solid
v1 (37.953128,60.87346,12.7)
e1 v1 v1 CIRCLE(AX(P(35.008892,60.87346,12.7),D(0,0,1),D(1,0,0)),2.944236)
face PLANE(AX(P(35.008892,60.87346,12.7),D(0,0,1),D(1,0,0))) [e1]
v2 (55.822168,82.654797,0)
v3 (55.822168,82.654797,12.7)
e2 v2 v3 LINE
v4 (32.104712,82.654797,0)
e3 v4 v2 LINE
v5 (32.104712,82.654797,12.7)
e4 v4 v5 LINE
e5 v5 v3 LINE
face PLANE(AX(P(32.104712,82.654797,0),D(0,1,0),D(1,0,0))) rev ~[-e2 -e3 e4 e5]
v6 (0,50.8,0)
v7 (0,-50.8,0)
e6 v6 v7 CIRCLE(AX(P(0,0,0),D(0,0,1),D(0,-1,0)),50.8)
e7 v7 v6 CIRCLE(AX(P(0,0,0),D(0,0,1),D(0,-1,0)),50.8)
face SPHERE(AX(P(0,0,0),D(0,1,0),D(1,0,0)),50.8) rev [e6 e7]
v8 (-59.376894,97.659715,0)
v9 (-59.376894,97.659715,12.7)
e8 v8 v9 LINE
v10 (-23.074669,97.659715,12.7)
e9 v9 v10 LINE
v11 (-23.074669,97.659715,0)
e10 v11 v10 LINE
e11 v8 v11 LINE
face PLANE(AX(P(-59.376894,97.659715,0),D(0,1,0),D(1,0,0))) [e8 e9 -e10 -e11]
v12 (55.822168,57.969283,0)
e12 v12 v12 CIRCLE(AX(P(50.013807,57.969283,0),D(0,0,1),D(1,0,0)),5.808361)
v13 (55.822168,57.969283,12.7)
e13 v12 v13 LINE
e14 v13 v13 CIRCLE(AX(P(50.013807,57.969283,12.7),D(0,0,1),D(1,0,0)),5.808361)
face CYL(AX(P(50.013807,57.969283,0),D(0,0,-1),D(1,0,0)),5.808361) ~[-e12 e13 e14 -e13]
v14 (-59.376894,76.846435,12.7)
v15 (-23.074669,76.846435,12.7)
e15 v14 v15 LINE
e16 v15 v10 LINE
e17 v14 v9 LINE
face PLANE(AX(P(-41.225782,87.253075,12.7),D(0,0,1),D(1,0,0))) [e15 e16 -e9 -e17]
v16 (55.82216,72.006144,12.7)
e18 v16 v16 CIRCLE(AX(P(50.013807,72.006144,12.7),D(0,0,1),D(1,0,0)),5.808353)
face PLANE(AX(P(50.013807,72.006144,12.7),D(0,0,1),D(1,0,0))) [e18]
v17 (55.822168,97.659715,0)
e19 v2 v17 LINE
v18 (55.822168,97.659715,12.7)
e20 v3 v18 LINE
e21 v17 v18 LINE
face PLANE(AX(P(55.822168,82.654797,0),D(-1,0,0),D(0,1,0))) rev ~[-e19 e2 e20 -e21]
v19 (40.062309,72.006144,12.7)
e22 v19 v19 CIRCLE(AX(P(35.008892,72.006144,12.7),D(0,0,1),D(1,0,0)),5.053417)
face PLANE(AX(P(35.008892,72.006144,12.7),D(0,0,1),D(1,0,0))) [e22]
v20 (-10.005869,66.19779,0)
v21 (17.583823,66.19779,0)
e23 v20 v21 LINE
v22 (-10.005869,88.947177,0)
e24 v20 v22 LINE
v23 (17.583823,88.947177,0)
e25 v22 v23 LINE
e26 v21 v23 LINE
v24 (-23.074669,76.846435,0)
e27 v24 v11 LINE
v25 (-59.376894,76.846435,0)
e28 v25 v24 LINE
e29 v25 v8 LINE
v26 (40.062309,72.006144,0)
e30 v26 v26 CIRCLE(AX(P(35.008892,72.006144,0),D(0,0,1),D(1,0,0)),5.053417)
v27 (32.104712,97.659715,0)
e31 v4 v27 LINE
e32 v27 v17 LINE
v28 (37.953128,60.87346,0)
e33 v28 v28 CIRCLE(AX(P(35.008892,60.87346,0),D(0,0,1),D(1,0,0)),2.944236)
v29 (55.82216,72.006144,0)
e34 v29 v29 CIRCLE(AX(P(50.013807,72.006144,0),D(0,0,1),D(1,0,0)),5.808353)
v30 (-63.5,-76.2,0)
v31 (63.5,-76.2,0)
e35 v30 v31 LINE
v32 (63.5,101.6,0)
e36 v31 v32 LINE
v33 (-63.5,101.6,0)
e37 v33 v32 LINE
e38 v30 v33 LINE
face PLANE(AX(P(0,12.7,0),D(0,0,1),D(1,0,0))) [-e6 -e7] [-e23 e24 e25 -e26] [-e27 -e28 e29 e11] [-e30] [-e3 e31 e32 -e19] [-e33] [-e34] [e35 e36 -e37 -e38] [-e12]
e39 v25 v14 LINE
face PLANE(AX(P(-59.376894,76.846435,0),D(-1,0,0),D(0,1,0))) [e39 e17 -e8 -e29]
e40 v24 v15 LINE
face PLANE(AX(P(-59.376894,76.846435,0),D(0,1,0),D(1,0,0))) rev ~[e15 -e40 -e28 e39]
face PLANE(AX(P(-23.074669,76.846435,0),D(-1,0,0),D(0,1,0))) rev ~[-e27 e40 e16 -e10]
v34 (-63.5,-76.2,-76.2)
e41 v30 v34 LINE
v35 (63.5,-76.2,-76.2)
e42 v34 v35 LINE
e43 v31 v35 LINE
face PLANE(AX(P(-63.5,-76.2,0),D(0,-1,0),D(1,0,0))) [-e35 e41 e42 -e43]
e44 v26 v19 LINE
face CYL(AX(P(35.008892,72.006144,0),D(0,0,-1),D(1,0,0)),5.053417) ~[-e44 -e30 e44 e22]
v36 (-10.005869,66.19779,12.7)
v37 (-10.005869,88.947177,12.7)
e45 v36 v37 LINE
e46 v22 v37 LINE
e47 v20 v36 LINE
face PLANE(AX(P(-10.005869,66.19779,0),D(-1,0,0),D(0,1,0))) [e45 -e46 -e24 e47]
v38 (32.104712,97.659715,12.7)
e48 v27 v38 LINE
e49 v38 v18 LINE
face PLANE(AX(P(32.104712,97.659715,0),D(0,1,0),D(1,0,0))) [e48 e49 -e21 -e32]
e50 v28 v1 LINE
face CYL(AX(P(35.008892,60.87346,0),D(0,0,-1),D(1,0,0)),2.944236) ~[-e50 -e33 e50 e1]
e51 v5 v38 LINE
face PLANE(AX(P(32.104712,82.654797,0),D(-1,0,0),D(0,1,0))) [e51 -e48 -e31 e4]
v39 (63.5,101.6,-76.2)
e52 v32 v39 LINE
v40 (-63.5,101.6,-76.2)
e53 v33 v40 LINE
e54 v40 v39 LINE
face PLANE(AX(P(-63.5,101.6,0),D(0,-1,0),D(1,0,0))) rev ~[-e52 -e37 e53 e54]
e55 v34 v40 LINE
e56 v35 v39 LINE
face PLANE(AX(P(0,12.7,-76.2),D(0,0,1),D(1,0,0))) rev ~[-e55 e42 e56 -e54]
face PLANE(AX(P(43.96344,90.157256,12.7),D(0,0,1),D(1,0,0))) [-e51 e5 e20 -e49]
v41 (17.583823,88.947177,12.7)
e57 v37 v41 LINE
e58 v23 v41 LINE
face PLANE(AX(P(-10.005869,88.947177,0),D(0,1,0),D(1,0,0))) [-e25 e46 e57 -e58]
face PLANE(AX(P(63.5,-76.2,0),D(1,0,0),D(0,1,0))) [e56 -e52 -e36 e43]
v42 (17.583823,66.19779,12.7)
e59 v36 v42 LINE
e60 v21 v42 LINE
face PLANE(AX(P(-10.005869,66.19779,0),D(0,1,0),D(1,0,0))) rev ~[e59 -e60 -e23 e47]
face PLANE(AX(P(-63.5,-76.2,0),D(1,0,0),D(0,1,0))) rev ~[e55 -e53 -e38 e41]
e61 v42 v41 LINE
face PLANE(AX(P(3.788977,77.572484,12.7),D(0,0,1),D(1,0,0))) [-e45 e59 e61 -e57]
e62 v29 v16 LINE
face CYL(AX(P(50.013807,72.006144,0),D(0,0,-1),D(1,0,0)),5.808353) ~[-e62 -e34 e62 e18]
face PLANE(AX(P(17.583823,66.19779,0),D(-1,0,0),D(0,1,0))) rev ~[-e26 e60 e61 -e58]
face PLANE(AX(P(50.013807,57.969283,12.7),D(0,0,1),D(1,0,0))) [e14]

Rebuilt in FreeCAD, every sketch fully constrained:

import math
import FreeCAD as App
import Part
import Sketcher
Q = App.Units.Quantity


def add_polygon(sketch, points):
    """Adds a closed chain of lines whose ends are joined by coincident constraints."""
    first, n = sketch.GeometryCount, len(points)
    for a, b in zip(points, points[1:] + points[:1]):
        sketch.addGeometry(Part.LineSegment(App.Vector(*a, 0), App.Vector(*b, 0)), False)
    for i in range(n):
        sketch.addConstraint(Sketcher.Constraint("Coincident", first + i, 2, first + (i + 1) % n, 1))

doc = App.newDocument("Part")
body = doc.addObject("PartDesign::Body", "Body")

# Sketch on XY plane
sketch1 = body.newObject("Sketcher::SketchObject", "Sketch")
sketch1.AttachmentSupport = (doc.getObject("XY_Plane"), [""])
sketch1.MapMode = "FlatFace"
add_polygon(sketch1, [(-64, 102), (-64, -76), (64, -76), (64, 102)])  # lines 0-3
sketch1.addConstraint(Sketcher.Constraint("Vertical", 0))
sketch1.addConstraint(Sketcher.Constraint("Horizontal", 1))
sketch1.addConstraint(Sketcher.Constraint("Vertical", 2))
sketch1.addConstraint(Sketcher.Constraint("Horizontal", 3))
sketch1.addConstraint(Sketcher.Constraint("DistanceX", 1, 1, 1, 2, Q("5 in")))
sketch1.addConstraint(Sketcher.Constraint("DistanceY", 0, 2, 0, 1, Q("7 in")))
sketch1.addConstraint(Sketcher.Constraint("DistanceY", 0, 2, -1, 1, Q("3 in")))
sketch1.addConstraint(Sketcher.Constraint("DistanceX", 0, 2, -1, 1, Q("2.5 in")))
pad1 = body.newObject("PartDesign::Pad", "Pad")
pad1.Profile = sketch1
pad1.Length = Q("3 in")
pad1.Reversed = True

# Sketch on XY plane
sketch2 = body.newObject("Sketcher::SketchObject", "Sketch001")
sketch2.AttachmentSupport = (doc.getObject("XY_Plane"), [""])
sketch2.MapMode = "FlatFace"
sketch2.addGeometry(Part.LineSegment(App.Vector(0, 51, 0), App.Vector(0, -51, 0)), False)
sketch2.addGeometry(Part.ArcOfCircle(Part.Circle(App.Vector(0, 0, 0), App.Vector(0, 0, 1), 51), math.radians(-90), math.radians(90)), False)
sketch2.addConstraint(Sketcher.Constraint("Coincident", 0, 1, 1, 2))
sketch2.addConstraint(Sketcher.Constraint("Coincident", 1, 1, 0, 2))
sketch2.addConstraint(Sketcher.Constraint("Vertical", 0))
sketch2.addConstraint(Sketcher.Constraint("Coincident", 1, 3, -1, 1))
sketch2.addConstraint(Sketcher.Constraint("PointOnObject", 0, 1, -2))
sketch2.addConstraint(Sketcher.Constraint("Radius", 1, Q("2 in")))
groove = body.newObject("PartDesign::Groove", "Groove")
groove.Profile = sketch2
groove.ReferenceAxis = (sketch2, ["V_Axis"])
groove.Angle = 360

# Sketch on XY plane
sketch3 = body.newObject("Sketcher::SketchObject", "Sketch002")
sketch3.AttachmentSupport = (doc.getObject("XY_Plane"), [""])
sketch3.MapMode = "FlatFace"
add_polygon(sketch3, [(-59.4, 97.7), (-59.4, 76.8), (-23.1, 76.8), (-23.1, 97.7)])  # lines 0-3
add_polygon(sketch3, [(-10, 88.9), (-10, 66.2), (17.6, 66.2), (17.6, 88.9)])  # lines 4-7
add_polygon(sketch3, [(32.1, 97.7), (32.1, 82.7), (55.8, 82.7), (55.8, 97.7)])  # lines 8-11
sketch3.addGeometry(Part.Circle(App.Vector(35, 72, 0), App.Vector(0, 0, 1), 5.1), False)  # 12
sketch3.addGeometry(Part.Circle(App.Vector(50, 72, 0), App.Vector(0, 0, 1), 5.8), False)  # 13
sketch3.addGeometry(Part.Circle(App.Vector(35, 60.9, 0), App.Vector(0, 0, 1), 2.9), False)  # 14
sketch3.addGeometry(Part.Circle(App.Vector(50, 58, 0), App.Vector(0, 0, 1), 5.8), False)  # 15
sketch3.addConstraint(Sketcher.Constraint("Vertical", 0))
sketch3.addConstraint(Sketcher.Constraint("Horizontal", 1))
sketch3.addConstraint(Sketcher.Constraint("Vertical", 2))
sketch3.addConstraint(Sketcher.Constraint("Horizontal", 3))
sketch3.addConstraint(Sketcher.Constraint("Vertical", 4))
sketch3.addConstraint(Sketcher.Constraint("Horizontal", 5))
sketch3.addConstraint(Sketcher.Constraint("Vertical", 6))
sketch3.addConstraint(Sketcher.Constraint("Horizontal", 7))
sketch3.addConstraint(Sketcher.Constraint("Vertical", 8))
sketch3.addConstraint(Sketcher.Constraint("Horizontal", 9))
sketch3.addConstraint(Sketcher.Constraint("Vertical", 10))
sketch3.addConstraint(Sketcher.Constraint("Horizontal", 11))
sketch3.addConstraint(Sketcher.Constraint("Horizontal", 12, 3, 13, 3))
sketch3.addConstraint(Sketcher.Constraint("Horizontal", 3, 2, 10, 2))
sketch3.addConstraint(Sketcher.Constraint("Vertical", 12, 3, 14, 3))
sketch3.addConstraint(Sketcher.Constraint("Vertical", 13, 3, 15, 3))
sketch3.addConstraint(Sketcher.Constraint("Diameter", 15, Q("11.616722 mm")))
sketch3.addConstraint(Sketcher.Constraint("Diameter", 12, Q("10.106834 mm")))
sketch3.addConstraint(Sketcher.Constraint("Diameter", 13, Q("11.616706 mm")))
sketch3.addConstraint(Sketcher.Constraint("Diameter", 14, Q("5.888472 mm")))
sketch3.addConstraint(Sketcher.Constraint("DistanceX", 5, 1, 5, 2, Q("27.589691 mm")))
sketch3.addConstraint(Sketcher.Constraint("DistanceY", 0, 2, 0, 1, Q("20.813279 mm")))
sketch3.addConstraint(Sketcher.Constraint("DistanceY", 8, 2, 8, 1, Q("15.004918 mm")))
sketch3.addConstraint(Sketcher.Constraint("DistanceX", 0, 2, 13, 3, Q("109.390702 mm")))
sketch3.addConstraint(Sketcher.Constraint("DistanceX", 1, 2, 4, 2, Q("13.068801 mm")))
sketch3.addConstraint(Sketcher.Constraint("DistanceX", 1, 1, 1, 2, Q("36.302225 mm")))
sketch3.addConstraint(Sketcher.Constraint("DistanceX", 9, 1, 9, 2, Q("23.717456 mm")))
sketch3.addConstraint(Sketcher.Constraint("DistanceY", 4, 2, 4, 1, Q("22.749387 mm")))
sketch3.addConstraint(Sketcher.Constraint("DistanceY", -1, 1, 14, 3, Q("60.87346 mm")))
sketch3.addConstraint(Sketcher.Constraint("DistanceX", 1, 2, -1, 1, Q("23.074669 mm")))
sketch3.addConstraint(Sketcher.Constraint("DistanceY", -1, 1, 4, 2, Q("66.19779 mm")))
sketch3.addConstraint(Sketcher.Constraint("DistanceY", 15, 3, 13, 3, Q("14.036861 mm")))
sketch3.addConstraint(Sketcher.Constraint("DistanceY", 12, 3, 0, 2, Q("4.840291 mm")))
sketch3.addConstraint(Sketcher.Constraint("DistanceX", 1, 2, 12, 3, Q("58.083562 mm")))
sketch3.addConstraint(Sketcher.Constraint("DistanceY", 1, 2, 7, 2, Q("12.100742 mm")))
sketch3.addConstraint(Sketcher.Constraint("DistanceX", 8, 2, 12, 3, Q("2.90418 mm")))
pad2 = body.newObject("PartDesign::Pad", "Pad001")
pad2.Profile = sketch3
pad2.Length = Q("0.5 in")

doc.recompute()
